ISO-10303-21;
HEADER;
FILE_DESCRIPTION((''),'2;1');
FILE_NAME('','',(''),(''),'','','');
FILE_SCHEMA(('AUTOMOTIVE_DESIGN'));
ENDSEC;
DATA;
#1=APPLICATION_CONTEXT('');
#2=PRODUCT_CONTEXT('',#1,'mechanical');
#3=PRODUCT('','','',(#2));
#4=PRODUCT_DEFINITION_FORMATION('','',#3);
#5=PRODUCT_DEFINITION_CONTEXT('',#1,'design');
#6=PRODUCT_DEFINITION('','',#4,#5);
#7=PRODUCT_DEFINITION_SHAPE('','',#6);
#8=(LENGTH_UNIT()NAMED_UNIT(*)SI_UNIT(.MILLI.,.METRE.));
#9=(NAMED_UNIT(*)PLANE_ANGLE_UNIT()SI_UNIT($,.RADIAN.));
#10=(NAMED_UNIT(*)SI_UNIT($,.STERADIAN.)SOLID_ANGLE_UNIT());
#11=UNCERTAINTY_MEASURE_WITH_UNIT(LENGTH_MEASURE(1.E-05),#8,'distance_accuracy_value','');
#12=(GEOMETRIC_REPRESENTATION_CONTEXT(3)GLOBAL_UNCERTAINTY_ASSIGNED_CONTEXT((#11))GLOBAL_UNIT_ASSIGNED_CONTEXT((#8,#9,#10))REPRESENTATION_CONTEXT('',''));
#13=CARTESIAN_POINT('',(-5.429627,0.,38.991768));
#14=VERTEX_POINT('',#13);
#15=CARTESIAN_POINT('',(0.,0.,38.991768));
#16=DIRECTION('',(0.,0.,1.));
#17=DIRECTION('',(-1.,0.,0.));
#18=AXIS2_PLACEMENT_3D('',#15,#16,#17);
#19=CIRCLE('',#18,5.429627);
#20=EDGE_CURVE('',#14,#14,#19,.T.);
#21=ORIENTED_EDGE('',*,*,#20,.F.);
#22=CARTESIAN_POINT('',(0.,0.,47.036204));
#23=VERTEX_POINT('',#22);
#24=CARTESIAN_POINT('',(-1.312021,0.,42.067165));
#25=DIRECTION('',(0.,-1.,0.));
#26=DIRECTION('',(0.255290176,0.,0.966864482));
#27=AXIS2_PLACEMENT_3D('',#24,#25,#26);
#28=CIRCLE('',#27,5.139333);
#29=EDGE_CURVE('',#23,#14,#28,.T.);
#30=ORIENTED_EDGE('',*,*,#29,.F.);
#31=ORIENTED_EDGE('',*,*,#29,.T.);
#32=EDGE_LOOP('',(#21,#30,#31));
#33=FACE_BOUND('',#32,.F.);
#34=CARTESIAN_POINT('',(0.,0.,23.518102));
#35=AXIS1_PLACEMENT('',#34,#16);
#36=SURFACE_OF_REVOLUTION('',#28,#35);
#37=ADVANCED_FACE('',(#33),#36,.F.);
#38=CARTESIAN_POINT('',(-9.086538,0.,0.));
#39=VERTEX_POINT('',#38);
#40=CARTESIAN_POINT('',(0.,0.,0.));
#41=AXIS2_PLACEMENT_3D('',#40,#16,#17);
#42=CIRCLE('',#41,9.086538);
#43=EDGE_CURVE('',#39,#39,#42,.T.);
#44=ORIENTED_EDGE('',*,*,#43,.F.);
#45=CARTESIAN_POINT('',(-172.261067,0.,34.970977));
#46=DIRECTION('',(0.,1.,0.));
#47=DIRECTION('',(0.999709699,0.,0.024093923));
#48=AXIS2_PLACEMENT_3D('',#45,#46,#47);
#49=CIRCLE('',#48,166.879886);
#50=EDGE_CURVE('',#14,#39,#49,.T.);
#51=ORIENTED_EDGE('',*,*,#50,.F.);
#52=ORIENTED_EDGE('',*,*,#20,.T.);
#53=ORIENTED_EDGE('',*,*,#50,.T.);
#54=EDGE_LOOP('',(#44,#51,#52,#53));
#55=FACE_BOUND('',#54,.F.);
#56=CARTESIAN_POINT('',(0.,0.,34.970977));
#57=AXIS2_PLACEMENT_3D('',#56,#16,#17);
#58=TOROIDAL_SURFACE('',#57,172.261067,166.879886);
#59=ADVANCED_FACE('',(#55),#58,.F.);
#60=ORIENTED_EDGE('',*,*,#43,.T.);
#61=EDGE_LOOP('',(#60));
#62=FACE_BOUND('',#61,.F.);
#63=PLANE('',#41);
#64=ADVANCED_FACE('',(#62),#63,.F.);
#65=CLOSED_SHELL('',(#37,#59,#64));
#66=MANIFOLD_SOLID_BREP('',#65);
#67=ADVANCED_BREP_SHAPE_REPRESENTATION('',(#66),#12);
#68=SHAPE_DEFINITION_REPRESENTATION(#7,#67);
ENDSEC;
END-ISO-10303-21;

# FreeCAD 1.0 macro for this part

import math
import FreeCAD as App
import Part
import Sketcher
from FreeCAD import Vector

doc = App.newDocument("Part")
params = doc.addObject("Spreadsheet::Sheet", "Params")
for row, (alias, value) in enumerate([
    ("revolution_angle", "360 deg"),
], start=1):
    params.set(f"A{row}", alias)
    params.set(f"B{row}", "=" + value)
    params.setAlias(f"B{row}", alias)

body = doc.addObject("PartDesign::Body", "Body")

# Sketch on XZ plane
sketch1 = body.newObject("Sketcher::SketchObject", "Sketch")
sketch1.AttachmentSupport = (doc.getObject("XZ_Plane"), [""])
sketch1.MapMode = "FlatFace"
sketch1.addGeometry([
    Part.LineSegment(Vector(0, 0, 0), Vector(0, 47, 0)),
    Part.ArcOfCircle(Part.Circle(Vector(-1, 42, 0), Vector(0, 0, 1), 5), math.radians(75), math.radians(217)),
    Part.ArcOfCircle(Part.Circle(Vector(-172, 35, 0), Vector(0, 0, 1), 167), math.radians(-12.1), math.radians(1.38)),
    Part.LineSegment(Vector(-9, 0, 0), Vector(0, 0, 0)),
], False)
sketch1.addConstraint([
    Sketcher.Constraint("Coincident", 0, 2, 1, 1),
    Sketcher.Constraint("Coincident", 1, 2, 2, 2),
    Sketcher.Constraint("Coincident", 2, 1, 3, 1),
    Sketcher.Constraint("Coincident", 3, 2, 0, 1),
    Sketcher.Constraint("Vertical", 0),
    Sketcher.Constraint("Horizontal", 3),
    Sketcher.Constraint("Coincident", 3, 2, -1, 1),
    Sketcher.Constraint("Radius", 1, 5.139333),
    Sketcher.Constraint("Radius", 2, 166.879886),
    Sketcher.Constraint("DistanceX", 3, 1, 3, 2, 9.086538),
    Sketcher.Constraint("DistanceY", 0, 1, 0, 2, 47.036204),
    Sketcher.Constraint("DistanceX", 1, 3, -1, 1, 1.312021),
    Sketcher.Constraint("DistanceY", -1, 1, 1, 2, 38.991768),
])
revolution = body.newObject("PartDesign::Revolution", "Revolution")
revolution.Profile = sketch1
revolution.ReferenceAxis = (sketch1, ["V_Axis"])
revolution.setExpression("Angle", "Params.revolution_angle")

doc.recompute()
